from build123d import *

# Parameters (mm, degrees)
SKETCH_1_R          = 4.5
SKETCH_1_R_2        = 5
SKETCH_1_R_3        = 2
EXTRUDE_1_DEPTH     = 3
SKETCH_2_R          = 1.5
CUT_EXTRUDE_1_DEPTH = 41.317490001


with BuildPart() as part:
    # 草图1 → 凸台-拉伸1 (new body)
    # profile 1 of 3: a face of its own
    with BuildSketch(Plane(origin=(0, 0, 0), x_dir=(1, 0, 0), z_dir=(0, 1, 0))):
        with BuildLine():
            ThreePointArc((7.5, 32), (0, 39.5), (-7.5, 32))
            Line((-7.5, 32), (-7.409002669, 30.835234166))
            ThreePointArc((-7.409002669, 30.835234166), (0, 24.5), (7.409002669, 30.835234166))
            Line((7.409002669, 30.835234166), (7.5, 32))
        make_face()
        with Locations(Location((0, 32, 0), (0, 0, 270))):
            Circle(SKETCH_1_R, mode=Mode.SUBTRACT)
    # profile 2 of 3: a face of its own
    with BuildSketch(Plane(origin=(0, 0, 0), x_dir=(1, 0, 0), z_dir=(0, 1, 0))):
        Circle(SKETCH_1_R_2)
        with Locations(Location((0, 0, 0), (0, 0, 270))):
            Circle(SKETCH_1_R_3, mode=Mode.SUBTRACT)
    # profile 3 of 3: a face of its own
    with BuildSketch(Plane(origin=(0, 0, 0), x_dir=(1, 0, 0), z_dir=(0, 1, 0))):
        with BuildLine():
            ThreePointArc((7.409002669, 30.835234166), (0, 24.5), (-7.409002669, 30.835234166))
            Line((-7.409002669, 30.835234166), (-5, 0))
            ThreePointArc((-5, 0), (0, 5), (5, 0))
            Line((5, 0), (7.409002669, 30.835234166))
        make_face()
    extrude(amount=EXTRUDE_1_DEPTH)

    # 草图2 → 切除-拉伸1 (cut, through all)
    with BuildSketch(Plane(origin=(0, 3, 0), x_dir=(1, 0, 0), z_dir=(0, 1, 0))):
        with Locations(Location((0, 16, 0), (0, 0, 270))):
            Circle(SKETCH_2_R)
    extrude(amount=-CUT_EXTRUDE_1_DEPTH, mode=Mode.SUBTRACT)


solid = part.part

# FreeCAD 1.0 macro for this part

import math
import FreeCAD as App
import Part
import Sketcher
from FreeCAD import Vector
Q = App.Units.Quantity

doc = App.newDocument("Part")
params = doc.addObject("Spreadsheet::Sheet", "Params")
for row, (alias, value) in enumerate([
    ("sketch1_diameter", "9 mm"),
    ("sketch1_diameter2", "4 mm"),
    ("sketch1_radius", "5 mm"),
    ("sketch1_radius2", "7.5 mm"),
    ("pad1_length", "3 mm"),
    ("sketch2_diameter", "3 mm"),
], start=1):
    params.set(f"A{row}", alias)
    params.set(f"B{row}", "=" + value)
    params.setAlias(f"B{row}", alias)

body = doc.addObject("PartDesign::Body", "Body")

# Sketch on XZ plane
sketch1 = body.newObject("Sketcher::SketchObject", "Sketch")
sketch1.AttachmentSupport = (doc.getObject("XZ_Plane"), [""])
sketch1.MapMode = "FlatFace"
sketch1.addGeometry([
    Part.ArcOfCircle(Part.Circle(Vector(0, -32, 0), Vector(0, 0, 1), 7.5), math.radians(180), math.radians(360)),  # 0
    Part.LineSegment(Vector(-7.5, -32, 0), Vector(-7.409003, -30.835234, 0)),  # 1
    Part.LineSegment(Vector(-7.409003, -30.835234, 0), Vector(-5, 0, 0)),  # 2
    Part.ArcOfCircle(Part.Circle(Vector(0, 0, 0), Vector(0, 0, 1), 5), math.radians(0), math.radians(180)),  # 3
    Part.LineSegment(Vector(5, 0, 0), Vector(7.409003, -30.835234, 0)),  # 4
    Part.LineSegment(Vector(7.409003, -30.835234, 0), Vector(7.5, -32, 0)),  # 5
    Part.Circle(Vector(0, -32, 0), Vector(0, 0, 1), 4.5),  # 6
    Part.Circle(Vector(0, 0, 0), Vector(0, 0, 1), 2),  # 7
], False)
sketch1.addConstraint([
    Sketcher.Constraint("Coincident", 0, 1, 1, 1),
    Sketcher.Constraint("Coincident", 1, 2, 2, 1),
    Sketcher.Constraint("Coincident", 2, 2, 3, 2),
    Sketcher.Constraint("Coincident", 3, 1, 4, 1),
    Sketcher.Constraint("Coincident", 4, 2, 5, 1),
    Sketcher.Constraint("Coincident", 5, 2, 0, 2),
    Sketcher.Constraint("Coincident", 3, 3, -1, 1),
    Sketcher.Constraint("Coincident", 7, 3, -1, 1),
    Sketcher.Constraint("Coincident", 6, 3, 0, 3),
    Sketcher.Constraint("Symmetric", 1, 2, 4, 2, -2),
    Sketcher.Constraint("Symmetric", 0, 1, 5, 2, -2),
    Sketcher.Constraint("PointOnObject", 2, 2, -1),
    Sketcher.Constraint("PointOnObject", 3, 1, -1),
    Sketcher.Constraint("Parallel", 1, 2),
    Sketcher.Constraint("Horizontal", 6, 3, 0, 1),
    Sketcher.Constraint("Diameter", 6, Q("9 mm")),
    Sketcher.Constraint("Diameter", 7, Q("4 mm")),
    Sketcher.Constraint("Radius", 3, Q("5 mm")),
    Sketcher.Constraint("Radius", 0, Q("7.5 mm")),
    Sketcher.Constraint("DistanceY", 0, 3, -1, 1, Q("32 mm")),
    Sketcher.Constraint("Distance", 1, Q("1.168315 mm")),
])
sketch1.setExpression("Constraints[15]", "Params.sketch1_diameter")
sketch1.setExpression("Constraints[16]", "Params.sketch1_diameter2")
sketch1.setExpression("Constraints[17]", "Params.sketch1_radius")
sketch1.setExpression("Constraints[18]", "Params.sketch1_radius2")
pad1 = body.newObject("PartDesign::Pad", "Pad")
pad1.Profile = sketch1
pad1.setExpression("Length", "Params.pad1_length")
pad1.Reversed = True

# Sketch on XZ plane
sketch2 = body.newObject("Sketcher::SketchObject", "Sketch001")
sketch2.AttachmentSupport = (doc.getObject("XZ_Plane"), [""])
sketch2.MapMode = "FlatFace"
sketch2.AttachmentOffset = App.Placement(Vector(0, 0, -3), App.Rotation())
sketch2.addGeometry(Part.Circle(Vector(0, -16, 0), Vector(0, 0, 1), 1.5), False)
sketch2.addConstraint([
    Sketcher.Constraint("PointOnObject", 0, 3, -2),
    Sketcher.Constraint("Diameter", 0, Q("3 mm")),
    Sketcher.Constraint("DistanceY", 0, 3, -1, 1, Q("16 mm")),
])
sketch2.setExpression("Constraints[1]", "Params.sketch2_diameter")
pocket1 = body.newObject("PartDesign::Pocket", "Pocket")
pocket1.Profile = sketch2
pocket1.Type = "ThroughAll"
pocket1.Reversed = True

doc.recompute()
